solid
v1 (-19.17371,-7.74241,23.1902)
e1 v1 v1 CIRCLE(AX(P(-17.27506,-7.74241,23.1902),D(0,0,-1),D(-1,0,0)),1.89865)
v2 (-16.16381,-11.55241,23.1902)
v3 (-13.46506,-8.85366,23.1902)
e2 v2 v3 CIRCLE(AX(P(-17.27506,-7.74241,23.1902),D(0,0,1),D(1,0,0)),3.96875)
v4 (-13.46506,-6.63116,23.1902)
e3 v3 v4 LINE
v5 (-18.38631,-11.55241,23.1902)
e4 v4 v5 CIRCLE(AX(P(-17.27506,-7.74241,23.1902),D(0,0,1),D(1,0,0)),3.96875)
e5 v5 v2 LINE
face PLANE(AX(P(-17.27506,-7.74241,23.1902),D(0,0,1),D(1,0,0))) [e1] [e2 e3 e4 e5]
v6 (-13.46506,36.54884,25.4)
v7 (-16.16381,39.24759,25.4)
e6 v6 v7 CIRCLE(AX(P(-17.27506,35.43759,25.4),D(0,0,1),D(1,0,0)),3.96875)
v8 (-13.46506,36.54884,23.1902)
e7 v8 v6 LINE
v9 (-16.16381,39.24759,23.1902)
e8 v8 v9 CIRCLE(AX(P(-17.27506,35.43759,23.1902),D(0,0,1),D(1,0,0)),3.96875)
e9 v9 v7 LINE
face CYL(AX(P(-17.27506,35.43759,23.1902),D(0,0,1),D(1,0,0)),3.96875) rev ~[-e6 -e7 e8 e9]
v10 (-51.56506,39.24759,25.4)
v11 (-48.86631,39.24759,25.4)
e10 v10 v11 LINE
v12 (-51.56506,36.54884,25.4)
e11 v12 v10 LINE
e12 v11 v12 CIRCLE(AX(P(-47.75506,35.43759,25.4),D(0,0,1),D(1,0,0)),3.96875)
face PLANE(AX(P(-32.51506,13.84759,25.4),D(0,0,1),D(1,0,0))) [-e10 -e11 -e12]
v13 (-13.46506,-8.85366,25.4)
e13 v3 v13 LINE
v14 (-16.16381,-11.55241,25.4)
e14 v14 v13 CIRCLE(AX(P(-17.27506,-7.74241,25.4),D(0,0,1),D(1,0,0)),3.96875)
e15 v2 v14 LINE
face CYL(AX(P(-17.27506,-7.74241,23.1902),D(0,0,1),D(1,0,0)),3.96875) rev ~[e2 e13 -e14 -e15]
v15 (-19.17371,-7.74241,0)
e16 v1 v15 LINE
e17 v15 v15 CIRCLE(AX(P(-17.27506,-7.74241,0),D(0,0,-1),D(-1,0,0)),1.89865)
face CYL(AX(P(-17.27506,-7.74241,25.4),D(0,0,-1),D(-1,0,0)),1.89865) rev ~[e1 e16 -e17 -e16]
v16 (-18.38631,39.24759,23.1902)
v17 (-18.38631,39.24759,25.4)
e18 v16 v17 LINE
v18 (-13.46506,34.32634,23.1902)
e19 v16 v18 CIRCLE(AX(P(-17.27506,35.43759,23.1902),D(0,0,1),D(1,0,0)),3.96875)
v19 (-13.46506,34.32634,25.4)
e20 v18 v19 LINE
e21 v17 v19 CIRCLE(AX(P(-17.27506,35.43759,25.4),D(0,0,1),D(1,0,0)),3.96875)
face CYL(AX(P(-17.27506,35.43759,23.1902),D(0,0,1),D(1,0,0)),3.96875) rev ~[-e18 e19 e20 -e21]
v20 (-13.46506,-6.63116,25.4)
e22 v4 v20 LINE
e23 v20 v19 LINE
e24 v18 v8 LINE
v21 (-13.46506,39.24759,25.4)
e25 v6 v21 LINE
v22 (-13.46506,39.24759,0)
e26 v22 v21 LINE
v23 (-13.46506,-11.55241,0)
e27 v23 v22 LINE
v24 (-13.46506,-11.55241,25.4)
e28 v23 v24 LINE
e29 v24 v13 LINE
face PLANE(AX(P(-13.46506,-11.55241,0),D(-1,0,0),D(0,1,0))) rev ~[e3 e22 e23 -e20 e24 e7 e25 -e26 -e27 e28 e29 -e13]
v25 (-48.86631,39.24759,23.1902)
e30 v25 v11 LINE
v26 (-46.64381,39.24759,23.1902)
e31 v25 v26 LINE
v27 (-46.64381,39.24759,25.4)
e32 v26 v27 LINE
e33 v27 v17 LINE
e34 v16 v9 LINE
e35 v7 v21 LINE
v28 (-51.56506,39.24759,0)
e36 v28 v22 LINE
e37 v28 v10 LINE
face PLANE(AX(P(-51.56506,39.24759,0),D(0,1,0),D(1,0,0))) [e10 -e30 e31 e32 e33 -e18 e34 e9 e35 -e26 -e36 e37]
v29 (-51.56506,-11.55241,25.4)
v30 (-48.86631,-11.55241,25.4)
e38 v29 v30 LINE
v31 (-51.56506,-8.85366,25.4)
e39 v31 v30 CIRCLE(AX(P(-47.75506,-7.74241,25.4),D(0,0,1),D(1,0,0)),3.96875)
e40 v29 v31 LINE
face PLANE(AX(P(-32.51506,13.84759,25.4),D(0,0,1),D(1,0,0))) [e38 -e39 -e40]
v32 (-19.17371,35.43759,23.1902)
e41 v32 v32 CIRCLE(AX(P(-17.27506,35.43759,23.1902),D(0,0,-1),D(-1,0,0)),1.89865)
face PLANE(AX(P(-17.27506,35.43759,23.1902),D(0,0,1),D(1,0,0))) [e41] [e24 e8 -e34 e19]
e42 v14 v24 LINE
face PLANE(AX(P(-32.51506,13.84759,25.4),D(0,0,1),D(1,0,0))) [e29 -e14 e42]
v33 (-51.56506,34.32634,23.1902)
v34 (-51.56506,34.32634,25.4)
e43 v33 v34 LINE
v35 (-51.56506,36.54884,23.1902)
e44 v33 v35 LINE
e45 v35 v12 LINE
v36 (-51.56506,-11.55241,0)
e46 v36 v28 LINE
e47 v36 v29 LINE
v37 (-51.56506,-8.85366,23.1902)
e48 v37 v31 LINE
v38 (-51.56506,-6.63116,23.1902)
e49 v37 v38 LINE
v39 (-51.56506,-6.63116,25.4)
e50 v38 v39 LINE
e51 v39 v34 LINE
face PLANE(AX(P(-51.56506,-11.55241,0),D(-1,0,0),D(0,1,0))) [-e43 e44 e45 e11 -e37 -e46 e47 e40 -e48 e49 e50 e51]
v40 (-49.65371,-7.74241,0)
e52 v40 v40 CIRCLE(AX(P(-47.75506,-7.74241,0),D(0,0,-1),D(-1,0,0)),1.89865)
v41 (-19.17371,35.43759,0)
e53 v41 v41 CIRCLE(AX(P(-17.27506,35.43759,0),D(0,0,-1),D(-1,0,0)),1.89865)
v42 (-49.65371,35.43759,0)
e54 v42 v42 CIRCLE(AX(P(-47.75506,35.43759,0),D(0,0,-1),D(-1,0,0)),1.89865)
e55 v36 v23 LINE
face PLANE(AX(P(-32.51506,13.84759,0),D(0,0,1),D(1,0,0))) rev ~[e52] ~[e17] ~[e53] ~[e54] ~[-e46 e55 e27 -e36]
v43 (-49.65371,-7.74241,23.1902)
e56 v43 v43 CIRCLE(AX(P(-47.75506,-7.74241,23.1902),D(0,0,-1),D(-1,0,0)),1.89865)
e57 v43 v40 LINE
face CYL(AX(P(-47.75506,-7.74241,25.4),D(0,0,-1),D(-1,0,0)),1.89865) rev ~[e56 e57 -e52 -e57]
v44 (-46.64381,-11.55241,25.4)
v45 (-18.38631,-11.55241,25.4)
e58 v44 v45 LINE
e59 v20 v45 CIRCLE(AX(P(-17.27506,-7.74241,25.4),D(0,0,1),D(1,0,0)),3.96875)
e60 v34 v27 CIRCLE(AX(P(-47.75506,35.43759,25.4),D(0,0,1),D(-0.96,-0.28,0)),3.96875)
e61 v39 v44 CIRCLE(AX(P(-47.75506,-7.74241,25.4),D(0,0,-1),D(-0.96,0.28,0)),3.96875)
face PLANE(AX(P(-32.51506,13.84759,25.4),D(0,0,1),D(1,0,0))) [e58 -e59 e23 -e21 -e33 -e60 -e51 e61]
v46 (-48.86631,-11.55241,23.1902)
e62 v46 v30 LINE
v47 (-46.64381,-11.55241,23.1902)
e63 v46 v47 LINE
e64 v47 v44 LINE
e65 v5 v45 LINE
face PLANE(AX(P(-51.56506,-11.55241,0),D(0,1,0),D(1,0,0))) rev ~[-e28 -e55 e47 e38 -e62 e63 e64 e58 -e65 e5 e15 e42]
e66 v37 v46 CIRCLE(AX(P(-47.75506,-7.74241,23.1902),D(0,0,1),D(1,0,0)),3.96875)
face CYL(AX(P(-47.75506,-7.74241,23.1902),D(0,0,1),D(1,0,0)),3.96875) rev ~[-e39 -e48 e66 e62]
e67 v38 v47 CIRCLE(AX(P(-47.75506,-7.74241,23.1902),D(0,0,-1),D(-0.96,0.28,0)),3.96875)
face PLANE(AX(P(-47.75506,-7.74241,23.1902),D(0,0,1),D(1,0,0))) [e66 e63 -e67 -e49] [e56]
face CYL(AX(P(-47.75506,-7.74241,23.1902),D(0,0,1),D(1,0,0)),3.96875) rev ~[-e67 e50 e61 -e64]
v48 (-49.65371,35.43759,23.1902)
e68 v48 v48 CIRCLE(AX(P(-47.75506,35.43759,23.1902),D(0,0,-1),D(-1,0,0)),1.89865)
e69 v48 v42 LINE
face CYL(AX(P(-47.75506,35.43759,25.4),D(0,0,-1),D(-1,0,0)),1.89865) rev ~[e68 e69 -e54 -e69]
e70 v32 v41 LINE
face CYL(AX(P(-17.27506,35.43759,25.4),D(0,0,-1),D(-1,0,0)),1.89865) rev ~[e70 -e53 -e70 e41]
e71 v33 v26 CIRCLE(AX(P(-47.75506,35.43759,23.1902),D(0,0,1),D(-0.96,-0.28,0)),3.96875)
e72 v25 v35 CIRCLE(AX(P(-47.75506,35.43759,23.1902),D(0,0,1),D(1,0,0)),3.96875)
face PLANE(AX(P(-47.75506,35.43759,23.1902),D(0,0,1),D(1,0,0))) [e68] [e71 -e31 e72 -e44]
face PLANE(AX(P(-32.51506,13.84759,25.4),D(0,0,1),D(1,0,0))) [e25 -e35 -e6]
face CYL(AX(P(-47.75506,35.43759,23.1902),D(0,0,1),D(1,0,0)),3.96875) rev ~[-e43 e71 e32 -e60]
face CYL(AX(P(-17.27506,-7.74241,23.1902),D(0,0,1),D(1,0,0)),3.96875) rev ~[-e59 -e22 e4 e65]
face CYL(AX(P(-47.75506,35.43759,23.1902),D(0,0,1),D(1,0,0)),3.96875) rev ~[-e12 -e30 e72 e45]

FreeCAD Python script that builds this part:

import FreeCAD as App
import Part
import Sketcher
from FreeCAD import Vector
Q = App.Units.Quantity

doc = App.newDocument("Part")
body = doc.addObject("PartDesign::Body", "Body")

sketch1 = body.newObject("Sketcher::SketchObject", "Sketch")
sketch1.AttachmentSupport = (doc.getObject("XY_Plane"), [""])
sketch1.MapMode = "FlatFace"
sketch1.addGeometry([
    Part.LineSegment(Vector(-52, 39, 0), Vector(-52, -12, 0)),
    Part.LineSegment(Vector(-52, -12, 0), Vector(-13, -12, 0)),
    Part.LineSegment(Vector(-13, -12, 0), Vector(-13, 39, 0)),
    Part.LineSegment(Vector(-13, 39, 0), Vector(-52, 39, 0)),
], False)
sketch1.addConstraint([
    Sketcher.Constraint("Coincident", 0, 2, 1, 1),
    Sketcher.Constraint("Coincident", 1, 2, 2, 1),
    Sketcher.Constraint("Coincident", 2, 2, 3, 1),
    Sketcher.Constraint("Coincident", 3, 2, 0, 1),
    Sketcher.Constraint("Vertical", 0),
    Sketcher.Constraint("Horizontal", 1),
    Sketcher.Constraint("Vertical", 2),
    Sketcher.Constraint("Horizontal", 3),
    Sketcher.Constraint("DistanceY", 0, 2, 0, 1, Q("2 in")),
    Sketcher.Constraint("DistanceX", 1, 1, 1, 2, Q("1.5 in")),
    Sketcher.Constraint("DistanceX", 0, 2, -1, 1, Q("51.56506 mm")),
    Sketcher.Constraint("DistanceY", 0, 2, -1, 1, Q("11.55241 mm")),
])
pad1 = body.newObject("PartDesign::Pad", "Pad")
pad1.Profile = sketch1
pad1.Length = Q("1 in")

sketch2 = body.newObject("Sketcher::SketchObject", "Sketch001")
sketch2.AttachmentSupport = (doc.getObject("XY_Plane"), [""])
sketch2.MapMode = "FlatFace"
sketch2.AttachmentOffset = App.Placement(Vector(0, 0, 1 * 25.4), App.Rotation())
sketch2.addGeometry([
    Part.Circle(Vector(-47.8, 35.4, 0), Vector(0, 0, 1), 1.9),
    Part.Circle(Vector(-17.3, 35.4, 0), Vector(0, 0, 1), 1.9),
    Part.Circle(Vector(-47.8, -7.7, 0), Vector(0, 0, 1), 1.9),
    Part.Circle(Vector(-17.3, -7.7, 0), Vector(0, 0, 1), 1.9),
], False)
sketch2.addConstraint([
    Sketcher.Constraint("Equal", 0, 1),
    Sketcher.Constraint("Equal", 1, 2),
    Sketcher.Constraint("Equal", 2, 3),
    Sketcher.Constraint("Horizontal", 0, 3, 1, 3),
    Sketcher.Constraint("Horizontal", 2, 3, 3, 3),
    Sketcher.Constraint("Vertical", 0, 3, 2, 3),
    Sketcher.Constraint("Vertical", 1, 3, 3, 3),
    Sketcher.Constraint("Diameter", 0, Q("0.1495 in")),
    Sketcher.Constraint("DistanceX", 0, 3, 1, 3, Q("1.2 in")),
    Sketcher.Constraint("DistanceY", 2, 3, 0, 3, Q("1.7 in")),
    Sketcher.Constraint("DistanceX", 0, 3, -1, 1, Q("47.75506 mm")),
    Sketcher.Constraint("DistanceY", -1, 1, 0, 3, Q("35.43759 mm")),
])
doc.recompute()
hole = body.newObject("PartDesign::Hole", "Hole")
hole.Profile = sketch2
hole.ThreadType = "None"
hole.Diameter = Q("0.1495 in")
hole.DepthType = "ThroughAll"
hole.HoleCutType = "Counterbore"
hole.HoleCutDiameter = Q("0.3125 in")
hole.HoleCutDepth = Q("0.087 in")

doc.recompute()
